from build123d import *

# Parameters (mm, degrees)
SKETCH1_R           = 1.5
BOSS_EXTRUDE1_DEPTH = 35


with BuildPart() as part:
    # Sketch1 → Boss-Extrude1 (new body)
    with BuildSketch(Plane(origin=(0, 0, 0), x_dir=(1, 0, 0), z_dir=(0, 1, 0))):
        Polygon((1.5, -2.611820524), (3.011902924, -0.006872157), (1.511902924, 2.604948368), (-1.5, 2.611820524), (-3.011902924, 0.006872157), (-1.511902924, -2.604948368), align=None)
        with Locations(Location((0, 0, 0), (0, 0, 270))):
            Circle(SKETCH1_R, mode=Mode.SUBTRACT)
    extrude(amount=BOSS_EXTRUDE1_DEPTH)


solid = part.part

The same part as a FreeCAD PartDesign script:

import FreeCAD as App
import Part
import Sketcher
Q = App.Units.Quantity

doc = App.newDocument("Part")
body = doc.addObject("PartDesign::Body", "Body")

# Sketch on XZ plane
sketch1 = body.newObject("Sketcher::SketchObject", "Sketch")
sketch1.AttachmentSupport = (doc.getObject("XZ_Plane"), [""])
sketch1.MapMode = "FlatFace"
sketch1.addGeometry([
    Part.LineSegment(App.Vector(1.5, 2.6, 0), App.Vector(3, 0, 0)),  # 0
    Part.LineSegment(App.Vector(3, 0, 0), App.Vector(1.5, -2.6, 0)),  # 1
    Part.LineSegment(App.Vector(1.5, -2.6, 0), App.Vector(-1.5, -2.6, 0)),  # 2
    Part.LineSegment(App.Vector(-1.5, -2.6, 0), App.Vector(-3, 0, 0)),  # 3
    Part.LineSegment(App.Vector(-3, 0, 0), App.Vector(-1.5, 2.6, 0)),  # 4
    Part.LineSegment(App.Vector(-1.5, 2.6, 0), App.Vector(1.5, 2.6, 0)),  # 5
    Part.Circle(App.Vector(0, 0, 0), App.Vector(0, 0, 1), 1.5),  # 6
], False)
sketch1.addConstraint([
    Sketcher.Constraint("Coincident", 0, 2, 1, 1),
    Sketcher.Constraint("Coincident", 1, 2, 2, 1),
    Sketcher.Constraint("Coincident", 2, 2, 3, 1),
    Sketcher.Constraint("Coincident", 3, 2, 4, 1),
    Sketcher.Constraint("Coincident", 4, 2, 5, 1),
    Sketcher.Constraint("Coincident", 5, 2, 0, 1),
    Sketcher.Constraint("Coincident", 6, 3, -1, 1),
    Sketcher.Constraint("Symmetric", 0, 2, 3, 2, -1, 1),
    Sketcher.Constraint("Symmetric", 1, 2, 4, 2, -1, 1),
    Sketcher.Constraint("Symmetric", 2, 2, 5, 2, -1, 1),
    Sketcher.Constraint("Equal", 0, 1),
    Sketcher.Constraint("Equal", 1, 2),
    Sketcher.Constraint("Diameter", 6, Q("3 mm")),
    Sketcher.Constraint("DistanceX", 2, 2, -1, 1, Q("1.5 mm")),
    Sketcher.Constraint("DistanceX", 1, 2, 0, 2, Q("1.5 mm")),
    Sketcher.Constraint("Distance", 0, Q("3.011911 mm")),
    Sketcher.Constraint("DistanceY", 1, 2, -1, 1, Q("2.604948 mm")),
])
pad1 = body.newObject("PartDesign::Pad", "Pad")
pad1.Profile = sketch1
pad1.Length = 35
pad1.Reversed = True

doc.recompute()
